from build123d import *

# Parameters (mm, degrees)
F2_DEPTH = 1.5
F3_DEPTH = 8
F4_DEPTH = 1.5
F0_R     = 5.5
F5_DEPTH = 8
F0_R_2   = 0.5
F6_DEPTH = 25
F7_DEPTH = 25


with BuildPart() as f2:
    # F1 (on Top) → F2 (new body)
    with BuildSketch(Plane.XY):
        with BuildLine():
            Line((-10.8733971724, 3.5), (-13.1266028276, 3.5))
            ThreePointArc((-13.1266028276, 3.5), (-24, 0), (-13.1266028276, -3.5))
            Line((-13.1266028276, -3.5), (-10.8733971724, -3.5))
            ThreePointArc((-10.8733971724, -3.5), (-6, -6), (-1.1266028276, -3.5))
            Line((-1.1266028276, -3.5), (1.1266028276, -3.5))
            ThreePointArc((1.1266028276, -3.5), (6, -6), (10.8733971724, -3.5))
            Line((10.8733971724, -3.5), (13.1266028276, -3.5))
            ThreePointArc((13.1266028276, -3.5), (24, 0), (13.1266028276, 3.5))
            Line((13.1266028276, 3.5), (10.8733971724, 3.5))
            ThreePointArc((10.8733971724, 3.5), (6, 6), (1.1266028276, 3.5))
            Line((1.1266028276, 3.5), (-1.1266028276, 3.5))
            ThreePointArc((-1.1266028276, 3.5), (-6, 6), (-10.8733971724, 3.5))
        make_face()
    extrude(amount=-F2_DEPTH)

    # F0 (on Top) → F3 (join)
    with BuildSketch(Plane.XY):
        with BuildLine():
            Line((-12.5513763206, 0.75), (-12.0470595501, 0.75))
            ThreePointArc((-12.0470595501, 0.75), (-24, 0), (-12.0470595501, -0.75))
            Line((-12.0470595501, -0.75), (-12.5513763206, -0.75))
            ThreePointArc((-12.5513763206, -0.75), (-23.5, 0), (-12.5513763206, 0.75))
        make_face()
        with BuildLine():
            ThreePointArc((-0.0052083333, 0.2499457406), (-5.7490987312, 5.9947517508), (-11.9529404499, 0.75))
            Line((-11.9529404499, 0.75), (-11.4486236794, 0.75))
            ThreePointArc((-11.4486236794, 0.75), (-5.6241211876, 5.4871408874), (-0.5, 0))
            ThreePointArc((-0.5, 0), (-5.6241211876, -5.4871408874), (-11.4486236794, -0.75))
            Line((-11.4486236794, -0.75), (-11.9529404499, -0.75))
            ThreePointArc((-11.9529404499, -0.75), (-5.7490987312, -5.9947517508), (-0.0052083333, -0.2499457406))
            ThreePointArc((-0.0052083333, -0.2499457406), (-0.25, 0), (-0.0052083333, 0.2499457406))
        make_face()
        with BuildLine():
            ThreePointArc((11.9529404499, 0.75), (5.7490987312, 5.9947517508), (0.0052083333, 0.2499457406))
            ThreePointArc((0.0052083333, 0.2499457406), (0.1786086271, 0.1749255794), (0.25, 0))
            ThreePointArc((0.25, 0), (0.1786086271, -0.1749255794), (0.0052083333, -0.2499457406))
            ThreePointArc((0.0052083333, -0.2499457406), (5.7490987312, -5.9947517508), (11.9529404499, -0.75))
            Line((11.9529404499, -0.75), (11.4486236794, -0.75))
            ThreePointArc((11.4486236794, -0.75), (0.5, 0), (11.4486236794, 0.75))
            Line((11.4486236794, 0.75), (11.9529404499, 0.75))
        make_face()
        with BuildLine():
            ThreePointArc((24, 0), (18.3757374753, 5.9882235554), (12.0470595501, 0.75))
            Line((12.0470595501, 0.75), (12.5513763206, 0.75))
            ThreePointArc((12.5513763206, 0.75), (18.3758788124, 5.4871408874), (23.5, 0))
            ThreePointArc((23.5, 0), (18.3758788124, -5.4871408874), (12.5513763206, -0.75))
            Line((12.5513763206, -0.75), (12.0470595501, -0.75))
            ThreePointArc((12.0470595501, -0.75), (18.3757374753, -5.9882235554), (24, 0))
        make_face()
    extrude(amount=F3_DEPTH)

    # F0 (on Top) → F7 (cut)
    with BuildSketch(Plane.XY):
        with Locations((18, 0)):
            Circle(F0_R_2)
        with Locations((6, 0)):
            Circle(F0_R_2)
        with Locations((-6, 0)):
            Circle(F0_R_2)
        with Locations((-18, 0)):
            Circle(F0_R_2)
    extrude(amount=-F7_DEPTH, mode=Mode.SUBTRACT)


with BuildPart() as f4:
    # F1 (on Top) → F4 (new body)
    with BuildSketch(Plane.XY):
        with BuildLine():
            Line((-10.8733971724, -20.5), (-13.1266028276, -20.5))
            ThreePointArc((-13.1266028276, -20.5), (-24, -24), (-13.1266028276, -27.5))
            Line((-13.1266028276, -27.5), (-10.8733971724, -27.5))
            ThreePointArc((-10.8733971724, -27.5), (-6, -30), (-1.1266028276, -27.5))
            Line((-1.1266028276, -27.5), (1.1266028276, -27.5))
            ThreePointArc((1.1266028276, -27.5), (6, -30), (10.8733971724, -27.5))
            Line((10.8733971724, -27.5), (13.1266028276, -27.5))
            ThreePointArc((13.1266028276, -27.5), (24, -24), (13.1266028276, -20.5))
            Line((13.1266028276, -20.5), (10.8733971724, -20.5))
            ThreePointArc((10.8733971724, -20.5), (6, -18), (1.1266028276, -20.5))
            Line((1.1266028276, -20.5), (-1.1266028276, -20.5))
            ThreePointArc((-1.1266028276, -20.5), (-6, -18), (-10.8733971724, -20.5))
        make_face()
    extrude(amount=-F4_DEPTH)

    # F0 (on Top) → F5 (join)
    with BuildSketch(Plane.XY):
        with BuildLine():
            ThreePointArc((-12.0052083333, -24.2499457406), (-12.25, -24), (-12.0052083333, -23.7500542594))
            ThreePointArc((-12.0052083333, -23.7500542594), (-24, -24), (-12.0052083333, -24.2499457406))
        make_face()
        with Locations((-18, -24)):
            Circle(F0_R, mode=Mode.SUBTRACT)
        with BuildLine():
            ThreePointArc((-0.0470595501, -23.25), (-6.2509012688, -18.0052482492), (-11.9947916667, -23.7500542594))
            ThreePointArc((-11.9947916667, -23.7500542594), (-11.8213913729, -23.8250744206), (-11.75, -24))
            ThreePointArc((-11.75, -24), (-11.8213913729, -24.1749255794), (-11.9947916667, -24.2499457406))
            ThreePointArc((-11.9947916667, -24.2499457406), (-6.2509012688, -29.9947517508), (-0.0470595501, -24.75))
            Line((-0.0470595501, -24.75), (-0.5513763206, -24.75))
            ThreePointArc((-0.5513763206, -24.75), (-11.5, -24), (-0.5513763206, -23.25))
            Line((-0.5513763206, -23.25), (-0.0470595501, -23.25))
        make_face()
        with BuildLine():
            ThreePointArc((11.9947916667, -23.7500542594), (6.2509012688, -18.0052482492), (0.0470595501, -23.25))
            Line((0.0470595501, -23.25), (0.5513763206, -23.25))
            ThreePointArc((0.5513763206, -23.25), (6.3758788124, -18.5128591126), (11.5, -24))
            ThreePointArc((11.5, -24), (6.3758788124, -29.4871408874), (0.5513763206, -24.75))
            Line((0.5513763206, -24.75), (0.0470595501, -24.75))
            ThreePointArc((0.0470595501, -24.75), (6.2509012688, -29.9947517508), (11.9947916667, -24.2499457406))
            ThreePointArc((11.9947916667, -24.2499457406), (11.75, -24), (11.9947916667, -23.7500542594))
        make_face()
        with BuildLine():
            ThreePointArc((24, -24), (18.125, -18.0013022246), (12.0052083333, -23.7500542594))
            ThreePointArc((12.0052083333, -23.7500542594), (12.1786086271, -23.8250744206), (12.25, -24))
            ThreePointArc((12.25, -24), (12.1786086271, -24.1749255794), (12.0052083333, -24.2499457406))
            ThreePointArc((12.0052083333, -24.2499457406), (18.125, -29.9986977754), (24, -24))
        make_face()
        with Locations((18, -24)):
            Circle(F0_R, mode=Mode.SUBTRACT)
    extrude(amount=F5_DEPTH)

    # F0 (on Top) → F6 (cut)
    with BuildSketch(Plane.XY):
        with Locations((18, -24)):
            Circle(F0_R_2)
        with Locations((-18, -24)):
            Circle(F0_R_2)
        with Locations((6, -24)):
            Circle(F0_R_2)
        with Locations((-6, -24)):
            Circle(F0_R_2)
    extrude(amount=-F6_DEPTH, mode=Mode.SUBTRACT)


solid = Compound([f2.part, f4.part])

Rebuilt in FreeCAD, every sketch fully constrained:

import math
import FreeCAD as App
import Part
import Sketcher
from FreeCAD import Vector
Q = App.Units.Quantity

doc = App.newDocument("Part")
body = doc.addObject("PartDesign::Body", "Body")

sketch1 = doc.addObject("Sketcher::SketchObject", "Sketch")
body.addObject(sketch1)
sketch1.AttachmentSupport = (doc.XY_Plane, [""])
sketch1.MapMode = "FlatFace"
sketch1.addGeometry(Part.LineSegment(Vector(-10.9, 3.5, 0), Vector(-13.1, 3.5, 0)), False)
sketch1.addGeometry(Part.ArcOfCircle(Part.Circle(Vector(-18, 0, 0), Vector(0, 0, 1), 6), math.radians(36), math.radians(324)), False)
sketch1.addGeometry(Part.LineSegment(Vector(-13.1, -3.5, 0), Vector(-10.9, -3.5, 0)), False)
sketch1.addGeometry(Part.ArcOfCircle(Part.Circle(Vector(-6, 0, 0), Vector(0, 0, 1), 6), math.radians(-144), math.radians(-36)), False)
sketch1.addGeometry(Part.LineSegment(Vector(-1.1, -3.5, 0), Vector(1.1, -3.5, 0)), False)
sketch1.addGeometry(Part.ArcOfCircle(Part.Circle(Vector(6, 0, 0), Vector(0, 0, 1), 6), math.radians(-144), math.radians(-36)), False)
sketch1.addGeometry(Part.LineSegment(Vector(10.9, -3.5, 0), Vector(13.1, -3.5, 0)), False)
sketch1.addGeometry(Part.ArcOfCircle(Part.Circle(Vector(18, 0, 0), Vector(0, 0, 1), 6), math.radians(-144), math.radians(144)), False)
sketch1.addGeometry(Part.LineSegment(Vector(13.1, 3.5, 0), Vector(10.9, 3.5, 0)), False)
sketch1.addGeometry(Part.ArcOfCircle(Part.Circle(Vector(6, 0, 0), Vector(0, 0, 1), 6), math.radians(36), math.radians(144)), False)
sketch1.addGeometry(Part.LineSegment(Vector(1.1, 3.5, 0), Vector(-1.1, 3.5, 0)), False)
sketch1.addGeometry(Part.ArcOfCircle(Part.Circle(Vector(-6, 0, 0), Vector(0, 0, 1), 6), math.radians(36), math.radians(144)), False)
sketch1.addConstraint(Sketcher.Constraint("Coincident", 0, 2, 1, 1))
sketch1.addConstraint(Sketcher.Constraint("Coincident", 1, 2, 2, 1))
sketch1.addConstraint(Sketcher.Constraint("Coincident", 2, 2, 3, 1))
sketch1.addConstraint(Sketcher.Constraint("Coincident", 3, 2, 4, 1))
sketch1.addConstraint(Sketcher.Constraint("Coincident", 4, 2, 5, 1))
sketch1.addConstraint(Sketcher.Constraint("Coincident", 5, 2, 6, 1))
sketch1.addConstraint(Sketcher.Constraint("Coincident", 6, 2, 7, 1))
sketch1.addConstraint(Sketcher.Constraint("Coincident", 7, 2, 8, 1))
sketch1.addConstraint(Sketcher.Constraint("Coincident", 8, 2, 9, 1))
sketch1.addConstraint(Sketcher.Constraint("Coincident", 9, 2, 10, 1))
sketch1.addConstraint(Sketcher.Constraint("Coincident", 10, 2, 11, 1))
sketch1.addConstraint(Sketcher.Constraint("Coincident", 11, 2, 0, 1))
sketch1.addConstraint(Sketcher.Constraint("Horizontal", 0))
sketch1.addConstraint(Sketcher.Constraint("Horizontal", 2))
sketch1.addConstraint(Sketcher.Constraint("Horizontal", 4))
sketch1.addConstraint(Sketcher.Constraint("Horizontal", 6))
sketch1.addConstraint(Sketcher.Constraint("Horizontal", 8))
sketch1.addConstraint(Sketcher.Constraint("Horizontal", 10))
sketch1.addConstraint(Sketcher.Constraint("Coincident", 9, 3, 5, 3))
sketch1.addConstraint(Sketcher.Constraint("Coincident", 11, 3, 3, 3))
sketch1.addConstraint(Sketcher.Constraint("Equal", 1, 3))
sketch1.addConstraint(Sketcher.Constraint("Equal", 3, 5))
sketch1.addConstraint(Sketcher.Constraint("Equal", 5, 7))
sketch1.addConstraint(Sketcher.Constraint("Equal", 7, 9))
sketch1.addConstraint(Sketcher.Constraint("Equal", 9, 11))
sketch1.addConstraint(Sketcher.Constraint("Symmetric", 3, 3, 5, 3, -1, 1))
sketch1.addConstraint(Sketcher.Constraint("Symmetric", 1, 3, 7, 3, -1, 1))
sketch1.addConstraint(Sketcher.Constraint("Symmetric", 2, 2, 5, 2, -2))
sketch1.addConstraint(Sketcher.Constraint("Symmetric", 0, 2, 7, 2, -2))
sketch1.addConstraint(Sketcher.Constraint("Horizontal", 2, 2, 3, 2))
sketch1.addConstraint(Sketcher.Constraint("Horizontal", 8, 2, 9, 2))
sketch1.addConstraint(Sketcher.Constraint("Vertical", 0, 2, 1, 2))
sketch1.addConstraint(Sketcher.Constraint("Equal", 2, 4))
sketch1.addConstraint(Sketcher.Constraint("Radius", 1, Q("6 mm")))
sketch1.addConstraint(Sketcher.Constraint("DistanceX", 1, 3, -1, 1, Q("18 mm")))
sketch1.addConstraint(Sketcher.Constraint("DistanceY", 1, 2, 0, 2, Q("7 mm")))
pad1 = doc.addObject("PartDesign::Pad", "Pad")
body.addObject(pad1)
pad1.Profile = sketch1
pad1.Length = 1.5
pad1.Reversed = True

sketch2 = doc.addObject("Sketcher::SketchObject", "Sketch001")
body.addObject(sketch2)
sketch2.AttachmentSupport = (doc.XY_Plane, [""])
sketch2.MapMode = "FlatFace"
sketch2.addGeometry(Part.LineSegment(Vector(-12.55, 0.75, 0), Vector(-12.05, 0.75, 0)), False)
sketch2.addGeometry(Part.ArcOfCircle(Part.Circle(Vector(-18, 0, 0), Vector(0, 0, 1), 6), math.radians(7), math.radians(353)), False)
sketch2.addGeometry(Part.LineSegment(Vector(-12.05, -0.75, 0), Vector(-12.55, -0.75, 0)), False)
sketch2.addGeometry(Part.ArcOfCircle(Part.Circle(Vector(-18, 0, 0), Vector(0, 0, 1), 5.5), math.radians(8), math.radians(352)), False)
sketch2.addGeometry(Part.ArcOfCircle(Part.Circle(Vector(-6, 0, 0), Vector(0, 0, 1), 6), math.radians(2), math.radians(173)), False)
sketch2.addGeometry(Part.LineSegment(Vector(-11.95, 0.75, 0), Vector(-11.45, 0.75, 0)), False)
sketch2.addGeometry(Part.ArcOfCircle(Part.Circle(Vector(-6, 0, 0), Vector(0, 0, 1), 5.5), math.radians(0), math.radians(172)), False)
sketch2.addGeometry(Part.ArcOfCircle(Part.Circle(Vector(-6, 0, 0), Vector(0, 0, 1), 5.5), math.radians(-172), math.radians(0)), False)
sketch2.addGeometry(Part.LineSegment(Vector(-11.45, -0.75, 0), Vector(-11.95, -0.75, 0)), False)
sketch2.addGeometry(Part.ArcOfCircle(Part.Circle(Vector(-6, 0, 0), Vector(0, 0, 1), 6), math.radians(-173), math.radians(-2)), False)
sketch2.addGeometry(Part.ArcOfCircle(Part.Circle(Vector(0, 0, 0), Vector(0, 0, 1), 0.25), math.radians(91), math.radians(269)), False)
sketch2.addGeometry(Part.ArcOfCircle(Part.Circle(Vector(6, 0, 0), Vector(0, 0, 1), 6), math.radians(7), math.radians(178)), False)
sketch2.addGeometry(Part.ArcOfCircle(Part.Circle(Vector(0, 0, 0), Vector(0, 0, 1), 0.25), math.radians(0), math.radians(89)), False)
sketch2.addGeometry(Part.ArcOfCircle(Part.Circle(Vector(0, 0, 0), Vector(0, 0, 1), 0.25), math.radians(-89), math.radians(0)), False)
sketch2.addGeometry(Part.ArcOfCircle(Part.Circle(Vector(6, 0, 0), Vector(0, 0, 1), 6), math.radians(-178), math.radians(-7)), False)
sketch2.addGeometry(Part.LineSegment(Vector(11.95, -0.75, 0), Vector(11.45, -0.75, 0)), False)
sketch2.addGeometry(Part.ArcOfCircle(Part.Circle(Vector(6, 0, 0), Vector(0, 0, 1), 5.5), math.radians(8), math.radians(352)), False)
sketch2.addGeometry(Part.LineSegment(Vector(11.45, 0.75, 0), Vector(11.95, 0.75, 0)), False)
sketch2.addGeometry(Part.ArcOfCircle(Part.Circle(Vector(18, 0, 0), Vector(0, 0, 1), 6), math.radians(0), math.radians(173)), False)
sketch2.addGeometry(Part.LineSegment(Vector(12.05, 0.75, 0), Vector(12.55, 0.75, 0)), False)
sketch2.addGeometry(Part.ArcOfCircle(Part.Circle(Vector(18, 0, 0), Vector(0, 0, 1), 5.5), math.radians(0), math.radians(172)), False)
sketch2.addGeometry(Part.ArcOfCircle(Part.Circle(Vector(18, 0, 0), Vector(0, 0, 1), 5.5), math.radians(-172), math.radians(0)), False)
sketch2.addGeometry(Part.LineSegment(Vector(12.55, -0.75, 0), Vector(12.05, -0.75, 0)), False)
sketch2.addGeometry(Part.ArcOfCircle(Part.Circle(Vector(18, 0, 0), Vector(0, 0, 1), 6), math.radians(-173), math.radians(0)), False)
sketch2.addConstraint(Sketcher.Constraint("Coincident", 0, 2, 1, 1))
sketch2.addConstraint(Sketcher.Constraint("Coincident", 1, 2, 2, 1))
sketch2.addConstraint(Sketcher.Constraint("Coincident", 2, 2, 3, 2))
sketch2.addConstraint(Sketcher.Constraint("Coincident", 3, 1, 0, 1))
sketch2.addConstraint(Sketcher.Constraint("Coincident", 4, 2, 5, 1))
sketch2.addConstraint(Sketcher.Constraint("Coincident", 5, 2, 6, 2))
sketch2.addConstraint(Sketcher.Constraint("Tangent", 6, 1, 7, 2))
sketch2.addConstraint(Sketcher.Constraint("Coincident", 7, 1, 8, 1))
sketch2.addConstraint(Sketcher.Constraint("Coincident", 8, 2, 9, 1))
sketch2.addConstraint(Sketcher.Constraint("Coincident", 9, 2, 10, 2))
sketch2.addConstraint(Sketcher.Constraint("Coincident", 10, 1, 4, 1))
sketch2.addConstraint(Sketcher.Constraint("Coincident", 11, 2, 12, 2))
sketch2.addConstraint(Sketcher.Constraint("Tangent", 12, 1, 13, 2))
sketch2.addConstraint(Sketcher.Constraint("Coincident", 13, 1, 14, 1))
sketch2.addConstraint(Sketcher.Constraint("Coincident", 14, 2, 15, 1))
sketch2.addConstraint(Sketcher.Constraint("Coincident", 15, 2, 16, 2))
sketch2.addConstraint(Sketcher.Constraint("Coincident", 16, 1, 17, 1))
sketch2.addConstraint(Sketcher.Constraint("Coincident", 17, 2, 11, 1))
sketch2.addConstraint(Sketcher.Constraint("Coincident", 18, 2, 19, 1))
sketch2.addConstraint(Sketcher.Constraint("Coincident", 19, 2, 20, 2))
sketch2.addConstraint(Sketcher.Constraint("Tangent", 20, 1, 21, 2))
sketch2.addConstraint(Sketcher.Constraint("Coincident", 21, 1, 22, 1))
sketch2.addConstraint(Sketcher.Constraint("Coincident", 22, 2, 23, 1))
sketch2.addConstraint(Sketcher.Constraint("Tangent", 23, 2, 18, 1))
sketch2.addConstraint(Sketcher.Constraint("Horizontal", 0))
sketch2.addConstraint(Sketcher.Constraint("Horizontal", 2))
sketch2.addConstraint(Sketcher.Constraint("Horizontal", 5))
sketch2.addConstraint(Sketcher.Constraint("Horizontal", 8))
sketch2.addConstraint(Sketcher.Constraint("Horizontal", 15))
sketch2.addConstraint(Sketcher.Constraint("Horizontal", 17))
sketch2.addConstraint(Sketcher.Constraint("Horizontal", 19))
sketch2.addConstraint(Sketcher.Constraint("Horizontal", 22))
sketch2.addConstraint(Sketcher.Constraint("Coincident", 10, 3, -1, 1))
sketch2.addConstraint(Sketcher.Constraint("Coincident", 12, 3, -1, 1))
sketch2.addConstraint(Sketcher.Constraint("Coincident", 3, 3, 1, 3))
sketch2.addConstraint(Sketcher.Constraint("Coincident", 6, 3, 4, 3))
sketch2.addConstraint(Sketcher.Constraint("Coincident", 9, 3, 4, 3))
sketch2.addConstraint(Sketcher.Constraint("Coincident", 14, 3, 11, 3))
sketch2.addConstraint(Sketcher.Constraint("Coincident", 16, 3, 11, 3))
sketch2.addConstraint(Sketcher.Constraint("Coincident", 20, 3, 18, 3))
sketch2.addConstraint(Sketcher.Constraint("Equal", 1, 4))
sketch2.addConstraint(Sketcher.Constraint("Equal", 3, 6))
sketch2.addConstraint(Sketcher.Constraint("Equal", 6, 7))
sketch2.addConstraint(Sketcher.Constraint("Equal", 4, 9))
sketch2.addConstraint(Sketcher.Constraint("Equal", 9, 11))
sketch2.addConstraint(Sketcher.Constraint("Equal", 10, 12))
sketch2.addConstraint(Sketcher.Constraint("Equal", 12, 13))
sketch2.addConstraint(Sketcher.Constraint("Equal", 11, 14))
sketch2.addConstraint(Sketcher.Constraint("Equal", 7, 16))
sketch2.addConstraint(Sketcher.Constraint("Equal", 14, 18))
sketch2.addConstraint(Sketcher.Constraint("Equal", 16, 20))
sketch2.addConstraint(Sketcher.Constraint("Equal", 20, 21))
sketch2.addConstraint(Sketcher.Constraint("Equal", 18, 23))
sketch2.addConstraint(Sketcher.Constraint("Symmetric", 4, 3, 11, 3, -1, 1))
sketch2.addConstraint(Sketcher.Constraint("Symmetric", 1, 3, 18, 3, -1, 1))
sketch2.addConstraint(Sketcher.Constraint("Symmetric", 8, 2, 14, 2, -2))
sketch2.addConstraint(Sketcher.Constraint("Symmetric", 0, 2, 18, 2, -2))
sketch2.addConstraint(Sketcher.Constraint("PointOnObject", 6, 1, -1))
sketch2.addConstraint(Sketcher.Constraint("PointOnObject", 12, 1, -1))
sketch2.addConstraint(Sketcher.Constraint("PointOnObject", 20, 1, -1))
sketch2.addConstraint(Sketcher.Constraint("PointOnObject", 23, 2, -1))
sketch2.addConstraint(Sketcher.Constraint("Horizontal", 3, 1, 4, 2))
sketch2.addConstraint(Sketcher.Constraint("Horizontal", 2, 2, 7, 1))
sketch2.addConstraint(Sketcher.Constraint("Horizontal", 5, 2, 16, 1))
sketch2.addConstraint(Sketcher.Constraint("Horizontal", 15, 2, 21, 1))
sketch2.addConstraint(Sketcher.Constraint("Vertical", 0, 2, 1, 2))
sketch2.addConstraint(Sketcher.Constraint("Radius", 1, Q("6 mm")))
sketch2.addConstraint(Sketcher.Constraint("Radius", 3, Q("5.5 mm")))
sketch2.addConstraint(Sketcher.Constraint("Radius", 10, Q("0.25 mm")))
sketch2.addConstraint(Sketcher.Constraint("DistanceX", 1, 3, -1, 1, Q("18 mm")))
sketch2.addConstraint(Sketcher.Constraint("DistanceX", 4, 3, -1, 1, Q("6 mm")))
sketch2.addConstraint(Sketcher.Constraint("DistanceY", 1, 2, 0, 2, Q("1.5 mm")))
pad2 = doc.addObject("PartDesign::Pad", "Pad001")
body.addObject(pad2)
pad2.Profile = sketch2
pad2.Length = 8

sketch3 = doc.addObject("Sketcher::SketchObject", "Sketch002")
body.addObject(sketch3)
sketch3.AttachmentSupport = (doc.XY_Plane, [""])
sketch3.MapMode = "FlatFace"
sketch3.addGeometry(Part.Circle(Vector(18, 0, 0), Vector(0, 0, 1), 0.5), False)
sketch3.addGeometry(Part.Circle(Vector(6, 0, 0), Vector(0, 0, 1), 0.5), False)
sketch3.addGeometry(Part.Circle(Vector(-6, 0, 0), Vector(0, 0, 1), 0.5), False)
sketch3.addGeometry(Part.Circle(Vector(-18, 0, 0), Vector(0, 0, 1), 0.5), False)
sketch3.addConstraint(Sketcher.Constraint("Equal", 0, 1))
sketch3.addConstraint(Sketcher.Constraint("Equal", 1, 2))
sketch3.addConstraint(Sketcher.Constraint("Equal", 2, 3))
sketch3.addConstraint(Sketcher.Constraint("Symmetric", 1, 3, 2, 3, -1, 1))
sketch3.addConstraint(Sketcher.Constraint("Symmetric", 0, 3, 3, 3, -1, 1))
sketch3.addConstraint(Sketcher.Constraint("PointOnObject", 0, 3, -1))
sketch3.addConstraint(Sketcher.Constraint("PointOnObject", 1, 3, -1))
sketch3.addConstraint(Sketcher.Constraint("Diameter", 0, Q("1 mm")))
sketch3.addConstraint(Sketcher.Constraint("DistanceX", -1, 1, 0, 3, Q("18 mm")))
sketch3.addConstraint(Sketcher.Constraint("DistanceX", -1, 1, 1, 3, Q("6 mm")))
pocket1 = doc.addObject("PartDesign::Pocket", "Pocket")
body.addObject(pocket1)
pocket1.Profile = sketch3
pocket1.Length = 25
body2 = doc.addObject("PartDesign::Body", "Body001")

sketch4 = doc.addObject("Sketcher::SketchObject", "Sketch003")
body2.addObject(sketch4)
sketch4.AttachmentSupport = (doc.getObject("XY_Plane001"), [""])
sketch4.MapMode = "FlatFace"
sketch4.addGeometry(Part.LineSegment(Vector(-10.9, -20.5, 0), Vector(-13.1, -20.5, 0)), False)
sketch4.addGeometry(Part.ArcOfCircle(Part.Circle(Vector(-18, -24, 0), Vector(0, 0, 1), 6), math.radians(36), math.radians(324)), False)
sketch4.addGeometry(Part.LineSegment(Vector(-13.1, -27.5, 0), Vector(-10.9, -27.5, 0)), False)
sketch4.addGeometry(Part.ArcOfCircle(Part.Circle(Vector(-6, -24, 0), Vector(0, 0, 1), 6), math.radians(-144), math.radians(-36)), False)
sketch4.addGeometry(Part.LineSegment(Vector(-1.1, -27.5, 0), Vector(1.1, -27.5, 0)), False)
sketch4.addGeometry(Part.ArcOfCircle(Part.Circle(Vector(6, -24, 0), Vector(0, 0, 1), 6), math.radians(-144), math.radians(-36)), False)
sketch4.addGeometry(Part.LineSegment(Vector(10.9, -27.5, 0), Vector(13.1, -27.5, 0)), False)
sketch4.addGeometry(Part.ArcOfCircle(Part.Circle(Vector(18, -24, 0), Vector(0, 0, 1), 6), math.radians(-144), math.radians(144)), False)
sketch4.addGeometry(Part.LineSegment(Vector(13.1, -20.5, 0), Vector(10.9, -20.5, 0)), False)
sketch4.addGeometry(Part.ArcOfCircle(Part.Circle(Vector(6, -24, 0), Vector(0, 0, 1), 6), math.radians(36), math.radians(144)), False)
sketch4.addGeometry(Part.LineSegment(Vector(1.1, -20.5, 0), Vector(-1.1, -20.5, 0)), False)
sketch4.addGeometry(Part.ArcOfCircle(Part.Circle(Vector(-6, -24, 0), Vector(0, 0, 1), 6), math.radians(36), math.radians(144)), False)
sketch4.addConstraint(Sketcher.Constraint("Coincident", 0, 2, 1, 1))
sketch4.addConstraint(Sketcher.Constraint("Coincident", 1, 2, 2, 1))
sketch4.addConstraint(Sketcher.Constraint("Coincident", 2, 2, 3, 1))
sketch4.addConstraint(Sketcher.Constraint("Coincident", 3, 2, 4, 1))
sketch4.addConstraint(Sketcher.Constraint("Coincident", 4, 2, 5, 1))
sketch4.addConstraint(Sketcher.Constraint("Coincident", 5, 2, 6, 1))
sketch4.addConstraint(Sketcher.Constraint("Coincident", 6, 2, 7, 1))
sketch4.addConstraint(Sketcher.Constraint("Coincident", 7, 2, 8, 1))
sketch4.addConstraint(Sketcher.Constraint("Coincident", 8, 2, 9, 1))
sketch4.addConstraint(Sketcher.Constraint("Coincident", 9, 2, 10, 1))
sketch4.addConstraint(Sketcher.Constraint("Coincident", 10, 2, 11, 1))
sketch4.addConstraint(Sketcher.Constraint("Coincident", 11, 2, 0, 1))
sketch4.addConstraint(Sketcher.Constraint("Horizontal", 0))
sketch4.addConstraint(Sketcher.Constraint("Horizontal", 2))
sketch4.addConstraint(Sketcher.Constraint("Horizontal", 4))
sketch4.addConstraint(Sketcher.Constraint("Horizontal", 6))
sketch4.addConstraint(Sketcher.Constraint("Horizontal", 8))
sketch4.addConstraint(Sketcher.Constraint("Horizontal", 10))
sketch4.addConstraint(Sketcher.Constraint("Coincident", 9, 3, 5, 3))
sketch4.addConstraint(Sketcher.Constraint("Coincident", 11, 3, 3, 3))
sketch4.addConstraint(Sketcher.Constraint("Equal", 1, 3))
sketch4.addConstraint(Sketcher.Constraint("Equal", 3, 5))
sketch4.addConstraint(Sketcher.Constraint("Equal", 5, 7))
sketch4.addConstraint(Sketcher.Constraint("Equal", 7, 9))
sketch4.addConstraint(Sketcher.Constraint("Equal", 9, 11))
sketch4.addConstraint(Sketcher.Constraint("Symmetric", 3, 3, 5, 3, -2))
sketch4.addConstraint(Sketcher.Constraint("Symmetric", 1, 3, 7, 3, -2))
sketch4.addConstraint(Sketcher.Constraint("Horizontal", 1, 3, 3, 3))
sketch4.addConstraint(Sketcher.Constraint("Horizontal", 2, 2, 3, 2))
sketch4.addConstraint(Sketcher.Constraint("Horizontal", 4, 2, 5, 2))
sketch4.addConstraint(Sketcher.Constraint("Horizontal", 0, 2, 7, 2))
sketch4.addConstraint(Sketcher.Constraint("Horizontal", 8, 2, 9, 2))
sketch4.addConstraint(Sketcher.Constraint("Vertical", 0, 2, 1, 2))
sketch4.addConstraint(Sketcher.Constraint("Equal", 2, 4))
sketch4.addConstraint(Sketcher.Constraint("Radius", 1, Q("6 mm")))
sketch4.addConstraint(Sketcher.Constraint("DistanceX", 1, 3, -1, 1, Q("18 mm")))
sketch4.addConstraint(Sketcher.Constraint("DistanceY", 1, 3, -1, 1, Q("24 mm")))
sketch4.addConstraint(Sketcher.Constraint("DistanceY", 1, 2, 0, 2, Q("7 mm")))
pad3 = doc.addObject("PartDesign::Pad", "Pad002")
body2.addObject(pad3)
pad3.Profile = sketch4
pad3.Length = 1.5
pad3.Reversed = True

sketch5 = doc.addObject("Sketcher::SketchObject", "Sketch004")
body2.addObject(sketch5)
sketch5.AttachmentSupport = (doc.getObject("XY_Plane001"), [""])
sketch5.MapMode = "FlatFace"
sketch5.addGeometry(Part.ArcOfCircle(Part.Circle(Vector(-12, -24, 0), Vector(0, 0, 1), 0.25), math.radians(91), math.radians(269)), False)
sketch5.addGeometry(Part.ArcOfCircle(Part.Circle(Vector(-18, -24, 0), Vector(0, 0, 1), 6), math.radians(2), math.radians(358)), False)
sketch5.addGeometry(Part.Circle(Vector(-18, -24, 0), Vector(0, 0, 1), 5.5), False)
sketch5.addGeometry(Part.ArcOfCircle(Part.Circle(Vector(-6, -24, 0), Vector(0, 0, 1), 6), math.radians(7), math.radians(178)), False)
sketch5.addGeometry(Part.ArcOfCircle(Part.Circle(Vector(-12, -24, 0), Vector(0, 0, 1), 0.25), math.radians(0), math.radians(89)), False)
sketch5.addGeometry(Part.ArcOfCircle(Part.Circle(Vector(-12, -24, 0), Vector(0, 0, 1), 0.25), math.radians(-89), math.radians(0)), False)
sketch5.addGeometry(Part.ArcOfCircle(Part.Circle(Vector(-6, -24, 0), Vector(0, 0, 1), 6), math.radians(-178), math.radians(-7)), False)
sketch5.addGeometry(Part.LineSegment(Vector(-0.05, -24.75, 0), Vector(-0.55, -24.75, 0)), False)
sketch5.addGeometry(Part.ArcOfCircle(Part.Circle(Vector(-6, -24, 0), Vector(0, 0, 1), 5.5), math.radians(8), math.radians(352)), False)
sketch5.addGeometry(Part.LineSegment(Vector(-0.55, -23.25, 0), Vector(-0.05, -23.25, 0)), False)
sketch5.addGeometry(Part.ArcOfCircle(Part.Circle(Vector(6, -24, 0), Vector(0, 0, 1), 6), math.radians(2), math.radians(173)), False)
sketch5.addGeometry(Part.LineSegment(Vector(0.05, -23.25, 0), Vector(0.55, -23.25, 0)), False)
sketch5.addGeometry(Part.ArcOfCircle(Part.Circle(Vector(6, -24, 0), Vector(0, 0, 1), 5.5), math.radians(0), math.radians(172)), False)
sketch5.addGeometry(Part.ArcOfCircle(Part.Circle(Vector(6, -24, 0), Vector(0, 0, 1), 5.5), math.radians(-172), math.radians(0)), False)
sketch5.addGeometry(Part.LineSegment(Vector(0.55, -24.75, 0), Vector(0.05, -24.75, 0)), False)
sketch5.addGeometry(Part.ArcOfCircle(Part.Circle(Vector(6, -24, 0), Vector(0, 0, 1), 6), math.radians(-173), math.radians(-2)), False)
sketch5.addGeometry(Part.ArcOfCircle(Part.Circle(Vector(12, -24, 0), Vector(0, 0, 1), 0.25), math.radians(91), math.radians(269)), False)
sketch5.addGeometry(Part.ArcOfCircle(Part.Circle(Vector(18, -24, 0), Vector(0, 0, 1), 6), math.radians(0), math.radians(178)), False)
sketch5.addGeometry(Part.ArcOfCircle(Part.Circle(Vector(12, -24, 0), Vector(0, 0, 1), 0.25), math.radians(0), math.radians(89)), False)
sketch5.addGeometry(Part.ArcOfCircle(Part.Circle(Vector(12, -24, 0), Vector(0, 0, 1), 0.25), math.radians(-89), math.radians(0)), False)
sketch5.addGeometry(Part.ArcOfCircle(Part.Circle(Vector(18, -24, 0), Vector(0, 0, 1), 6), math.radians(-178), math.radians(0)), False)
sketch5.addGeometry(Part.Circle(Vector(18, -24, 0), Vector(0, 0, 1), 5.5), False)
sketch5.addConstraint(Sketcher.Constraint("Coincident", 0, 1, 1, 1))
sketch5.addConstraint(Sketcher.Constraint("Coincident", 1, 2, 0, 2))
sketch5.addConstraint(Sketcher.Constraint("Coincident", 3, 2, 4, 2))
sketch5.addConstraint(Sketcher.Constraint("Tangent", 4, 1, 5, 2))
sketch5.addConstraint(Sketcher.Constraint("Coincident", 5, 1, 6, 1))
sketch5.addConstraint(Sketcher.Constraint("Coincident", 6, 2, 7, 1))
sketch5.addConstraint(Sketcher.Constraint("Coincident", 7, 2, 8, 2))
sketch5.addConstraint(Sketcher.Constraint("Coincident", 8, 1, 9, 1))
sketch5.addConstraint(Sketcher.Constraint("Coincident", 9, 2, 3, 1))
sketch5.addConstraint(Sketcher.Constraint("Coincident", 10, 2, 11, 1))
sketch5.addConstraint(Sketcher.Constraint("Coincident", 11, 2, 12, 2))
sketch5.addConstraint(Sketcher.Constraint("Tangent", 12, 1, 13, 2))
sketch5.addConstraint(Sketcher.Constraint("Coincident", 13, 1, 14, 1))
sketch5.addConstraint(Sketcher.Constraint("Coincident", 14, 2, 15, 1))
sketch5.addConstraint(Sketcher.Constraint("Coincident", 15, 2, 16, 2))
sketch5.addConstraint(Sketcher.Constraint("Coincident", 16, 1, 10, 1))
sketch5.addConstraint(Sketcher.Constraint("Coincident", 17, 2, 18, 2))
sketch5.addConstraint(Sketcher.Constraint("Tangent", 18, 1, 19, 2))
sketch5.addConstraint(Sketcher.Constraint("Coincident", 19, 1, 20, 1))
sketch5.addConstraint(Sketcher.Constraint("Tangent", 20, 2, 17, 1))
sketch5.addConstraint(Sketcher.Constraint("Horizontal", 7))
sketch5.addConstraint(Sketcher.Constraint("Horizontal", 9))
sketch5.addConstraint(Sketcher.Constraint("Horizontal", 11))
sketch5.addConstraint(Sketcher.Constraint("Horizontal", 14))
sketch5.addConstraint(Sketcher.Constraint("Coincident", 2, 3, 1, 3))
sketch5.addConstraint(Sketcher.Constraint("Coincident", 4, 3, 0, 3))
sketch5.addConstraint(Sketcher.Constraint("Coincident", 6, 3, 3, 3))
sketch5.addConstraint(Sketcher.Constraint("Coincident", 8, 3, 3, 3))
sketch5.addConstraint(Sketcher.Constraint("Coincident", 12, 3, 10, 3))
sketch5.addConstraint(Sketcher.Constraint("Coincident", 15, 3, 10, 3))
sketch5.addConstraint(Sketcher.Constraint("Coincident", 18, 3, 16, 3))
sketch5.addConstraint(Sketcher.Constraint("Coincident", 21, 3, 17, 3))
sketch5.addConstraint(Sketcher.Constraint("Equal", 1, 3))
sketch5.addConstraint(Sketcher.Constraint("Equal", 0, 4))
sketch5.addConstraint(Sketcher.Constraint("Equal", 4, 5))
sketch5.addConstraint(Sketcher.Constraint("Equal", 3, 6))
sketch5.addConstraint(Sketcher.Constraint("Equal", 2, 8))
sketch5.addConstraint(Sketcher.Constraint("Equal", 6, 10))
sketch5.addConstraint(Sketcher.Constraint("Equal", 8, 12))
sketch5.addConstraint(Sketcher.Constraint("Equal", 12, 13))
sketch5.addConstraint(Sketcher.Constraint("Equal", 10, 15))
sketch5.addConstraint(Sketcher.Constraint("Equal", 5, 16))
sketch5.addConstraint(Sketcher.Constraint("Equal", 15, 17))
sketch5.addConstraint(Sketcher.Constraint("Equal", 16, 18))
sketch5.addConstraint(Sketcher.Constraint("Equal", 18, 19))
sketch5.addConstraint(Sketcher.Constraint("Equal", 17, 20))
sketch5.addConstraint(Sketcher.Constraint("Equal", 13, 21))
sketch5.addConstraint(Sketcher.Constraint("Symmetric", 3, 3, 10, 3, -2))
sketch5.addConstraint(Sketcher.Constraint("Symmetric", 0, 3, 16, 3, -2))
sketch5.addConstraint(Sketcher.Constraint("Symmetric", 1, 3, 17, 3, -2))
sketch5.addConstraint(Sketcher.Constraint("Horizontal", 0, 3, 1, 3))
sketch5.addConstraint(Sketcher.Constraint("Horizontal", 2, 3, 3, 3))
sketch5.addConstraint(Sketcher.Constraint("Horizontal", 21, 3, 4, 1))
sketch5.addConstraint(Sketcher.Constraint("Horizontal", 9, 2, 10, 2))
sketch5.addConstraint(Sketcher.Constraint("Horizontal", 4, 1, 12, 1))
sketch5.addConstraint(Sketcher.Constraint("Horizontal", 7, 2, 13, 1))
sketch5.addConstraint(Sketcher.Constraint("Horizontal", 12, 1, 18, 1))
sketch5.addConstraint(Sketcher.Constraint("Horizontal", 18, 1, 20, 2))
sketch5.addConstraint(Sketcher.Constraint("Vertical", 7, 2, 8, 1))
sketch5.addConstraint(Sketcher.Constraint("Diameter", 2, Q("11 mm")))
sketch5.addConstraint(Sketcher.Constraint("Radius", 1, Q("6 mm")))
sketch5.addConstraint(Sketcher.Constraint("Radius", 0, Q("0.25 mm")))
sketch5.addConstraint(Sketcher.Constraint("DistanceX", 0, 3, -1, 1, Q("12 mm")))
sketch5.addConstraint(Sketcher.Constraint("DistanceY", 0, 3, -1, 1, Q("24 mm")))
sketch5.addConstraint(Sketcher.Constraint("DistanceX", 1, 3, -1, 1, Q("18 mm")))
sketch5.addConstraint(Sketcher.Constraint("DistanceX", 3, 3, -1, 1, Q("6 mm")))
sketch5.addConstraint(Sketcher.Constraint("DistanceY", 7, 2, 8, 1, Q("1.5 mm")))
pad4 = doc.addObject("PartDesign::Pad", "Pad003")
body2.addObject(pad4)
pad4.Profile = sketch5
pad4.Length = 8

sketch6 = doc.addObject("Sketcher::SketchObject", "Sketch005")
body2.addObject(sketch6)
sketch6.AttachmentSupport = (doc.getObject("XY_Plane001"), [""])
sketch6.MapMode = "FlatFace"
sketch6.addGeometry(Part.Circle(Vector(18, -24, 0), Vector(0, 0, 1), 0.5), False)
sketch6.addGeometry(Part.Circle(Vector(-18, -24, 0), Vector(0, 0, 1), 0.5), False)
sketch6.addGeometry(Part.Circle(Vector(6, -24, 0), Vector(0, 0, 1), 0.5), False)
sketch6.addGeometry(Part.Circle(Vector(-6, -24, 0), Vector(0, 0, 1), 0.5), False)
sketch6.addConstraint(Sketcher.Constraint("Equal", 0, 1))
sketch6.addConstraint(Sketcher.Constraint("Equal", 1, 2))
sketch6.addConstraint(Sketcher.Constraint("Equal", 2, 3))
sketch6.addConstraint(Sketcher.Constraint("Symmetric", 0, 3, 1, 3, -2))
sketch6.addConstraint(Sketcher.Constraint("Symmetric", 2, 3, 3, 3, -2))
sketch6.addConstraint(Sketcher.Constraint("Horizontal", 1, 3, 2, 3))
sketch6.addConstraint(Sketcher.Constraint("Diameter", 0, Q("1 mm")))
sketch6.addConstraint(Sketcher.Constraint("DistanceX", -1, 1, 0, 3, Q("18 mm")))
sketch6.addConstraint(Sketcher.Constraint("DistanceY", 0, 3, -1, 1, Q("24 mm")))
sketch6.addConstraint(Sketcher.Constraint("DistanceX", -1, 1, 2, 3, Q("6 mm")))
pocket2 = doc.addObject("PartDesign::Pocket", "Pocket001")
body2.addObject(pocket2)
pocket2.Profile = sketch6
pocket2.Length = 25

doc.recompute()
